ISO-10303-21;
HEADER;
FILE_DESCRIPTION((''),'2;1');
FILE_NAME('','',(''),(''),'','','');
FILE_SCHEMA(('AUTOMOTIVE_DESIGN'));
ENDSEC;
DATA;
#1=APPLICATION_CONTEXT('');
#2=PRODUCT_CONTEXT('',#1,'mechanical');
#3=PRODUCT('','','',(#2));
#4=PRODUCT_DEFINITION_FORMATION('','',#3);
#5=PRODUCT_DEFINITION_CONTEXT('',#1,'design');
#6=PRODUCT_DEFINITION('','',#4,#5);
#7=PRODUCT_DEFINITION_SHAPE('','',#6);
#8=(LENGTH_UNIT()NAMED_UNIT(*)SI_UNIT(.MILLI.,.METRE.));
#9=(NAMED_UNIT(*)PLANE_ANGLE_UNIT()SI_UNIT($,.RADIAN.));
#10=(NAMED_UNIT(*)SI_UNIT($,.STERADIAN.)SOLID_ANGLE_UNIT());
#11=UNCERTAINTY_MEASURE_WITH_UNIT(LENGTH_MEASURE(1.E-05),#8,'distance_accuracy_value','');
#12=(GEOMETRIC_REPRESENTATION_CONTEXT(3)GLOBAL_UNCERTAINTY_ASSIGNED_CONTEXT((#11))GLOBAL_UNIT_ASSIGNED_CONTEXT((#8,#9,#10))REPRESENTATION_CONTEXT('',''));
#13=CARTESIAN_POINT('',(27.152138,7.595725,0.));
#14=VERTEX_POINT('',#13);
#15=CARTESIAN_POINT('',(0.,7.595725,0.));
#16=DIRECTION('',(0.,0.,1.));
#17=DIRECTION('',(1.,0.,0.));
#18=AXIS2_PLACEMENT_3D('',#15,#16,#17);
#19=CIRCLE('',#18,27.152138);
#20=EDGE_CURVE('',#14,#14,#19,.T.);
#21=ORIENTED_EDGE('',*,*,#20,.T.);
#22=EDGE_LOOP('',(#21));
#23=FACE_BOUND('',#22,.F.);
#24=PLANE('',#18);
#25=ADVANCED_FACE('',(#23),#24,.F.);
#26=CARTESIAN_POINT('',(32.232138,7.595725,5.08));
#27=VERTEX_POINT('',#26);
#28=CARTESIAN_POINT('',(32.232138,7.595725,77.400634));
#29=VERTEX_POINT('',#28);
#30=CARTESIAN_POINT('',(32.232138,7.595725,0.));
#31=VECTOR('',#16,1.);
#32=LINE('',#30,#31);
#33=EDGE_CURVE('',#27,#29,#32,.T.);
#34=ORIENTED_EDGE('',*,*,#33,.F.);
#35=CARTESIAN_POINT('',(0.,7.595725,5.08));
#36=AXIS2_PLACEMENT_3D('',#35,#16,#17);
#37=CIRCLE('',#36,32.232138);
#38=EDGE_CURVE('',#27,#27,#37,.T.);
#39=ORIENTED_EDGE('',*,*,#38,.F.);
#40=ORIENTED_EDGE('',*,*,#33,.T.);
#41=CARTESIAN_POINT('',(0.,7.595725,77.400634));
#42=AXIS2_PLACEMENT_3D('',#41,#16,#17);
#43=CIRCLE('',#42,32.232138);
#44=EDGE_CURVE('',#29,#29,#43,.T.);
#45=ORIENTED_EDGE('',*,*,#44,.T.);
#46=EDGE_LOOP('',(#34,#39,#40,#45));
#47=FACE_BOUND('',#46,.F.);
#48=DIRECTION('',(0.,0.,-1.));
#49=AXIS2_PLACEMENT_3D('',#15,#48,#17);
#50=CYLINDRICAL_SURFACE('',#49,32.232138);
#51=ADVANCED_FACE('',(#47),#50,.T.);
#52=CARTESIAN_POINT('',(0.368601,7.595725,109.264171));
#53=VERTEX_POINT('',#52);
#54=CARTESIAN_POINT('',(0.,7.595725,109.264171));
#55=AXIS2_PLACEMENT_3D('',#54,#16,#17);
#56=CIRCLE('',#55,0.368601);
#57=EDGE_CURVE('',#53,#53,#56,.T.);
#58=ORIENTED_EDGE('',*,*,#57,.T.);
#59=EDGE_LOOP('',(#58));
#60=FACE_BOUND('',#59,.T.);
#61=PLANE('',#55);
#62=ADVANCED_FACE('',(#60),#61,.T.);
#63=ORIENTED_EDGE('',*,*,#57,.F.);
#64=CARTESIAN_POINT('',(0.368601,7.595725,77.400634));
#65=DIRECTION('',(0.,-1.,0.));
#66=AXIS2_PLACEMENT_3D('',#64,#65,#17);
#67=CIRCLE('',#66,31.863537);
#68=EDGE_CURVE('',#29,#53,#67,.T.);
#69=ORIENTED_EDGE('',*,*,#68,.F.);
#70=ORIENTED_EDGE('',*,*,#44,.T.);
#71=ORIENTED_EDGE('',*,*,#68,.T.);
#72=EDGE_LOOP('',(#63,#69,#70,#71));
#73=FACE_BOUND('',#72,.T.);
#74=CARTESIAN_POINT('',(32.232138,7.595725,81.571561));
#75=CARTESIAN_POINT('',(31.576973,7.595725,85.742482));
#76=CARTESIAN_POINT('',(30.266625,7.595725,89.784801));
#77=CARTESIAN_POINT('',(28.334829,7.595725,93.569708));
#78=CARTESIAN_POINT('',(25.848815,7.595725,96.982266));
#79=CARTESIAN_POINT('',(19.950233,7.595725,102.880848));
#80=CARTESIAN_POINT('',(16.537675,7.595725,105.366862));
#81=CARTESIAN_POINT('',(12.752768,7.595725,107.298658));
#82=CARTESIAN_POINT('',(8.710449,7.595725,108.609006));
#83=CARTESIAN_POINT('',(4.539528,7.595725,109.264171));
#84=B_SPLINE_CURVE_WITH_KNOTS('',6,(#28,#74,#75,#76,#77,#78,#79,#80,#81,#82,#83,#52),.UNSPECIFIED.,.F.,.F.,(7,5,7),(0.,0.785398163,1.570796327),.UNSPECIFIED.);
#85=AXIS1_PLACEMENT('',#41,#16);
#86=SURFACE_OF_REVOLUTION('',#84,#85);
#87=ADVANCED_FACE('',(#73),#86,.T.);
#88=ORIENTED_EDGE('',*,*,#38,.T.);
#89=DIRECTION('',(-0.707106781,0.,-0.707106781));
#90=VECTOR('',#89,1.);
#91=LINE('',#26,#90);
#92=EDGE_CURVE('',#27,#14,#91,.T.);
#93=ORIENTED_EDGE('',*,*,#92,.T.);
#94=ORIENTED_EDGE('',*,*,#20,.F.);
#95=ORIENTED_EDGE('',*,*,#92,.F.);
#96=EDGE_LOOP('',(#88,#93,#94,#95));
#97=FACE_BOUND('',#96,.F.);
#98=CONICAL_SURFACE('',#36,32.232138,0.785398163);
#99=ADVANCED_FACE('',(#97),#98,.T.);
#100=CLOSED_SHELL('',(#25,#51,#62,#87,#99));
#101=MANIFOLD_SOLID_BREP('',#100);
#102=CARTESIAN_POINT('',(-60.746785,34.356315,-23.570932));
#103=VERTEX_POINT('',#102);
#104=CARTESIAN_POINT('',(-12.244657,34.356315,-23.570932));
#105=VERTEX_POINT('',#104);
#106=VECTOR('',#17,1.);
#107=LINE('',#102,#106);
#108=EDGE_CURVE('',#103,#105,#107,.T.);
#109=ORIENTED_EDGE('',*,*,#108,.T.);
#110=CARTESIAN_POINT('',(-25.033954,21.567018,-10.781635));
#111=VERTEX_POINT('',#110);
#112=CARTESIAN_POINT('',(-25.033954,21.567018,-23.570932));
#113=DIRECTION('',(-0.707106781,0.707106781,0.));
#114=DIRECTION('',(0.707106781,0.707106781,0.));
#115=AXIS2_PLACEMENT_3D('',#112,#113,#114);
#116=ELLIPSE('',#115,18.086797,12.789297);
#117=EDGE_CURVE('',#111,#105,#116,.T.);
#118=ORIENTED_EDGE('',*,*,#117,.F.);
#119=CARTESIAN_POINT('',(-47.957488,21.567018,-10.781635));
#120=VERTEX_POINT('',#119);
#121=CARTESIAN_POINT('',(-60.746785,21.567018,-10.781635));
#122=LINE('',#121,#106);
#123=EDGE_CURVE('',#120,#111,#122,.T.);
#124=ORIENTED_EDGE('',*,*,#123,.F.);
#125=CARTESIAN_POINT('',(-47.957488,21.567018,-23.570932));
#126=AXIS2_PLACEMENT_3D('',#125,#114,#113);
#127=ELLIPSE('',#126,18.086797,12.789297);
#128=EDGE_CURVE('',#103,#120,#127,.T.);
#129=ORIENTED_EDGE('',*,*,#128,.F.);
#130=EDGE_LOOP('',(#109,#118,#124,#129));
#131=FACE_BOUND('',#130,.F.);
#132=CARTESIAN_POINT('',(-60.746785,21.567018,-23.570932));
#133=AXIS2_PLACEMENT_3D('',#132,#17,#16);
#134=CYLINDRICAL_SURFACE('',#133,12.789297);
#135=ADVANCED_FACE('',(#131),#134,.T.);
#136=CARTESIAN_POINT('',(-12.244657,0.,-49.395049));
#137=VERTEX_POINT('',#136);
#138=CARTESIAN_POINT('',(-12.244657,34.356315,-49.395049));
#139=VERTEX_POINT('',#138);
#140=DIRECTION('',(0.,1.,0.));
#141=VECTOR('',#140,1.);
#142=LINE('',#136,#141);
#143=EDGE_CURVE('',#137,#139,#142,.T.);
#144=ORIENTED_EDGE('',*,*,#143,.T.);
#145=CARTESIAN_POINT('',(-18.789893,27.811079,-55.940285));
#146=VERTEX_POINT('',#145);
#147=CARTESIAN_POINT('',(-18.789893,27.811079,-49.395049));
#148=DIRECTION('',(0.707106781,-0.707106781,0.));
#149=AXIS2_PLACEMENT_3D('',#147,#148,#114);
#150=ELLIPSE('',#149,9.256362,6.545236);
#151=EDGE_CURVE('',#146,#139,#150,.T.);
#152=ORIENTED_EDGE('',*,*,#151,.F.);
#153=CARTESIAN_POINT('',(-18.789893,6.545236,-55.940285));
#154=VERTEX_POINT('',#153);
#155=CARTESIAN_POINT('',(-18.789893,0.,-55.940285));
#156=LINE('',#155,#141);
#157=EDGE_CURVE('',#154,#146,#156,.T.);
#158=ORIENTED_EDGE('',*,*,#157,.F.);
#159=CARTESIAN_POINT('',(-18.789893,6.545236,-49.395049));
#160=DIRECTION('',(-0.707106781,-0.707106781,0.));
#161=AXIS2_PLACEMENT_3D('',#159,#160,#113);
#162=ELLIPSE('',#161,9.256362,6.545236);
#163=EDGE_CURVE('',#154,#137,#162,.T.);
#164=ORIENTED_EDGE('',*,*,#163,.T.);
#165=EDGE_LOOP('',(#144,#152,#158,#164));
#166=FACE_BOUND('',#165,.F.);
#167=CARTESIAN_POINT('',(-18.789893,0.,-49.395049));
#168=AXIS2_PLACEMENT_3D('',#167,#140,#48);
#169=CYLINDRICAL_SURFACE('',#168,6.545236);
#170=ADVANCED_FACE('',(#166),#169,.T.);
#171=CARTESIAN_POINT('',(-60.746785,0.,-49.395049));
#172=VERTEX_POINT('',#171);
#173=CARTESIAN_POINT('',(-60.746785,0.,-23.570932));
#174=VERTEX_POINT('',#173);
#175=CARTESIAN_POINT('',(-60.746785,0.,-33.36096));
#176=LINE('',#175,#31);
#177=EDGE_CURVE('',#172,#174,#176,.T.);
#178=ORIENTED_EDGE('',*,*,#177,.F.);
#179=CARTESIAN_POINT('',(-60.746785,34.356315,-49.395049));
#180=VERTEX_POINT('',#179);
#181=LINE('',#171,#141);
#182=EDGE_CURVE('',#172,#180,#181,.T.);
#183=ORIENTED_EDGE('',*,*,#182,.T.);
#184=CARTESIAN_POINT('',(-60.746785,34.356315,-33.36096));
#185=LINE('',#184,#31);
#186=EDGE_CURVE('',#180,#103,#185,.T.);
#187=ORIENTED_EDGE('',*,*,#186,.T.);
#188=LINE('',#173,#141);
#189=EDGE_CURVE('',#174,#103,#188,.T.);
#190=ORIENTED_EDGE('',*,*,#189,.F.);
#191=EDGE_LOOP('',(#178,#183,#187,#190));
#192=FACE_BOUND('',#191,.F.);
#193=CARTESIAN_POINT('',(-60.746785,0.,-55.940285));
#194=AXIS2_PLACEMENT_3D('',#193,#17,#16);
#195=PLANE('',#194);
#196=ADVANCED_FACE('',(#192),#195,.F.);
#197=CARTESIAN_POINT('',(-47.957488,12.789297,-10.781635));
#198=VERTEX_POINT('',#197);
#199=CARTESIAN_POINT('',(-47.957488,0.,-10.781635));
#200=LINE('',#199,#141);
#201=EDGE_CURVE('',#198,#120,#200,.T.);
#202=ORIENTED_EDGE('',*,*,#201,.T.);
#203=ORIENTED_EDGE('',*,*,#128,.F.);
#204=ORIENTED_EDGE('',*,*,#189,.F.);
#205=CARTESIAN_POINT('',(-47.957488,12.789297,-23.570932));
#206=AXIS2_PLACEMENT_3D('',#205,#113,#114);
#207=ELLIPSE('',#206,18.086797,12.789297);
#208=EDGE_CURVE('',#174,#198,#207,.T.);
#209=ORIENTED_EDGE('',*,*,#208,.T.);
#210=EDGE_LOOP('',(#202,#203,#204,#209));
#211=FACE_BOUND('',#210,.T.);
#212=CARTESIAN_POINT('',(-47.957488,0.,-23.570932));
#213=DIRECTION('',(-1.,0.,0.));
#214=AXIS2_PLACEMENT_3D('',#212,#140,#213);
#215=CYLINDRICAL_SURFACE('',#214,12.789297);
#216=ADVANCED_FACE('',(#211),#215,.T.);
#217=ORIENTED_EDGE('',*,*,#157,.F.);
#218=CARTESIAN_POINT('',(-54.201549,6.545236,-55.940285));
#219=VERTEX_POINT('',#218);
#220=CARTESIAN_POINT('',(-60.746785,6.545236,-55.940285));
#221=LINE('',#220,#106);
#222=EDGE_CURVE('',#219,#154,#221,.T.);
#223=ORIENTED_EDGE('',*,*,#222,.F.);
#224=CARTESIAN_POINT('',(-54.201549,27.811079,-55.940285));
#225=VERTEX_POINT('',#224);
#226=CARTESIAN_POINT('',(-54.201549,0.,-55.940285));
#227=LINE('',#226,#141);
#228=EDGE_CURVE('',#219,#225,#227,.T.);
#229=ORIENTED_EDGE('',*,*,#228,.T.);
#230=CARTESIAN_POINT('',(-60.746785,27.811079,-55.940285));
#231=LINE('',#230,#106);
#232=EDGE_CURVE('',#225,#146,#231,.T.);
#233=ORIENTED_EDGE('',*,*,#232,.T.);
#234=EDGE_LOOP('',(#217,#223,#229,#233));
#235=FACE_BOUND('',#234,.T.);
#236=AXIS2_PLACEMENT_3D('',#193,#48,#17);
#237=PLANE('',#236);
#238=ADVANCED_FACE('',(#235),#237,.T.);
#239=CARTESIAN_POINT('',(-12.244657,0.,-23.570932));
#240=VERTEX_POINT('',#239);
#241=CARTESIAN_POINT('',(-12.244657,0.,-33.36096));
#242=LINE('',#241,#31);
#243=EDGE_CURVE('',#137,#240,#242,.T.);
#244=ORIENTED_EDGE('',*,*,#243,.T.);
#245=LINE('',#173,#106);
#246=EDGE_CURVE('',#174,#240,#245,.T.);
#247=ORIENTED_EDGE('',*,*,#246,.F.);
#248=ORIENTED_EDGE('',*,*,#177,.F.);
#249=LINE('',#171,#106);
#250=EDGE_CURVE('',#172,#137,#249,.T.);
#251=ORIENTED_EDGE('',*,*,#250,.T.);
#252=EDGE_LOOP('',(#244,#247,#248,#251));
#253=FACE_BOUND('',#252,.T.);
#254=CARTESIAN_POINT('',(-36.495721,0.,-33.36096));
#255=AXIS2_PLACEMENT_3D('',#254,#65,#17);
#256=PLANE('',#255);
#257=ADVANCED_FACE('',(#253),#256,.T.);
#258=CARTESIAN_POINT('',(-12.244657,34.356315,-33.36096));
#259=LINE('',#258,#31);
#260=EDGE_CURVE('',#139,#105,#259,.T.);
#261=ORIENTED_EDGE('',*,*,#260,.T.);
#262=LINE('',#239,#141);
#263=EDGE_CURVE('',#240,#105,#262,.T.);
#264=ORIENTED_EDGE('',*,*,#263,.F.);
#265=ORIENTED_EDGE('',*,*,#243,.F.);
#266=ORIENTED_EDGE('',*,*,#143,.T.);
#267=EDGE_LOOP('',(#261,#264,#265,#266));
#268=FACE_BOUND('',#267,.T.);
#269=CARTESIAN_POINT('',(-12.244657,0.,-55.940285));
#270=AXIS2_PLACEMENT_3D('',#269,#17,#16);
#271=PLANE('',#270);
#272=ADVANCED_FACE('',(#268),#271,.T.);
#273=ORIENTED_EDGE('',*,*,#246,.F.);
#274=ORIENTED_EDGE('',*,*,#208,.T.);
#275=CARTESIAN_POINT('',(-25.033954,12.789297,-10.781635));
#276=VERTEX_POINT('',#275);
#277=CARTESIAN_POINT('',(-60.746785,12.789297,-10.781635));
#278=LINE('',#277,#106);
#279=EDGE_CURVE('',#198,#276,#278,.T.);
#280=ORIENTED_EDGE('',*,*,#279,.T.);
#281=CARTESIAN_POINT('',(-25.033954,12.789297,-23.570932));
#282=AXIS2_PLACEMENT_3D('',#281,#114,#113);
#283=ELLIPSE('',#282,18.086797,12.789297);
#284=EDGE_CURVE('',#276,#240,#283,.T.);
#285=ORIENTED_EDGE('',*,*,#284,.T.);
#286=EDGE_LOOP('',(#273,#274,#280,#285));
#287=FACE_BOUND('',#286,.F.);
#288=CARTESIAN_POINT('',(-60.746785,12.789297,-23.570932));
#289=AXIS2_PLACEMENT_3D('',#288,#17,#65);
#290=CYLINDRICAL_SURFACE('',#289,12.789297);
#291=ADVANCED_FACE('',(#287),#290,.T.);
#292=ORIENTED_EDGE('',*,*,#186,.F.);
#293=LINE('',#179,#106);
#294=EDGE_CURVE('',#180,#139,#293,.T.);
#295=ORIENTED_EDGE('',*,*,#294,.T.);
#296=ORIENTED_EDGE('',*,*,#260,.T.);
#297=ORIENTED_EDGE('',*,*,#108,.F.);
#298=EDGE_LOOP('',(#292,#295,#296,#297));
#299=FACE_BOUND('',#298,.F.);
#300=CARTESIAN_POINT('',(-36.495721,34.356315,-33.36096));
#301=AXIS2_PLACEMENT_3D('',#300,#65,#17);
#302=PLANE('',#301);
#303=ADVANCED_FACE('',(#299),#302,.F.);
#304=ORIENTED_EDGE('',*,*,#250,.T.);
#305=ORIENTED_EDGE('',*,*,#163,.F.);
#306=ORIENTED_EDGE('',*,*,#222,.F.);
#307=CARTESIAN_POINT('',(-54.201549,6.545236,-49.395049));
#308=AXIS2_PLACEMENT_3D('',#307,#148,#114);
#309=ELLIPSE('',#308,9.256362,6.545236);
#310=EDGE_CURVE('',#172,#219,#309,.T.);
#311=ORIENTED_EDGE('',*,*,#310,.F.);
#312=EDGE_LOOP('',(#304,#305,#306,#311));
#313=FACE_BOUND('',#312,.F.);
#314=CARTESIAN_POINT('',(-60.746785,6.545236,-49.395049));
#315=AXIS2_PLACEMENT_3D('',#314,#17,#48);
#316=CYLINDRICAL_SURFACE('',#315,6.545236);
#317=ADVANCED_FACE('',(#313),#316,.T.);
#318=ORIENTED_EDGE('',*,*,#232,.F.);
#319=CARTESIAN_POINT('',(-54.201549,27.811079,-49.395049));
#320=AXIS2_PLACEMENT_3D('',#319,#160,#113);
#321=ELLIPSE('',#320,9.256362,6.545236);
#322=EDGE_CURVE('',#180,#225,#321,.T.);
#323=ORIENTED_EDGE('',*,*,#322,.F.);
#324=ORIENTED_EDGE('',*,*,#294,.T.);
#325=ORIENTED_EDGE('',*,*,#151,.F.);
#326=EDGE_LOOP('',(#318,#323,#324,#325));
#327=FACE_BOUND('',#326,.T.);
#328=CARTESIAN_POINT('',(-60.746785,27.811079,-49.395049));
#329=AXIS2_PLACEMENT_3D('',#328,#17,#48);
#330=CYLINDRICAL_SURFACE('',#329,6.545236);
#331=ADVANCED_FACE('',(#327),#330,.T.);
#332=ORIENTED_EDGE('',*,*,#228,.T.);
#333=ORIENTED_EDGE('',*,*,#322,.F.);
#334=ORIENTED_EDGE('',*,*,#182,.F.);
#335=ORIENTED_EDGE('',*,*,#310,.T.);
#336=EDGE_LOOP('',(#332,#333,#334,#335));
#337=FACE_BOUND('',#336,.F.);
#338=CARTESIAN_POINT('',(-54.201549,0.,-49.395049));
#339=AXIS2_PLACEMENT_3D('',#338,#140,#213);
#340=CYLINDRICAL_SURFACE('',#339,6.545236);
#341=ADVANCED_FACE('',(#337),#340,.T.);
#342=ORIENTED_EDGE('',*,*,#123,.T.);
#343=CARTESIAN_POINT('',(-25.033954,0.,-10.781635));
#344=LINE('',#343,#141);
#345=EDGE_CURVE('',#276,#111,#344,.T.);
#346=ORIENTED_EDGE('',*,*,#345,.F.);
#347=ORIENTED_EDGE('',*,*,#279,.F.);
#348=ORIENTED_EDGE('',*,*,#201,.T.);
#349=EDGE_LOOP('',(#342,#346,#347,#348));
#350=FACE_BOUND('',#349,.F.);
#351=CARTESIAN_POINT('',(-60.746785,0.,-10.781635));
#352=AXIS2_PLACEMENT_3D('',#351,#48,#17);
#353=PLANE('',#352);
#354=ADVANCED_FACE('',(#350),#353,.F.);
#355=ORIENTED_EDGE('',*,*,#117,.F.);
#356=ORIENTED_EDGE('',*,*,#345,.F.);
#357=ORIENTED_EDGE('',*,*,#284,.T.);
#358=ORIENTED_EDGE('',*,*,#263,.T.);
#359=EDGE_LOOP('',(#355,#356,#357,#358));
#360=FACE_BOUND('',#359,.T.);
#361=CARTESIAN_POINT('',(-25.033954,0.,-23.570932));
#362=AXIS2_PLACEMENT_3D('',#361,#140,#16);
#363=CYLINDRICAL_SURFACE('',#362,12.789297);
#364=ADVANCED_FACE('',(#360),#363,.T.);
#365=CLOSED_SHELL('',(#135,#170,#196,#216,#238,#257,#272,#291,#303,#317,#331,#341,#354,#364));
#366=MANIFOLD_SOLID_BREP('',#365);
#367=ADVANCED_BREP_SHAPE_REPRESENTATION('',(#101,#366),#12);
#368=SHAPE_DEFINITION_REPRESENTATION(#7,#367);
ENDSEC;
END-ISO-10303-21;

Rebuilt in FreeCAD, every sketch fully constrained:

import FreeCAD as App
import Part
import Sketcher

V = App.Vector
Q = App.Units.Quantity


def edges_at(feature, points):
    """Names of the edges that pass closest to the given points."""
    edges = feature.Shape.Edges
    near = lambda p: min(range(len(edges)), key=lambda i: edges[i].distToShape(Part.Vertex(*p))[0])
    return sorted({f"Edge{near(p) + 1}" for p in points})


def add_polygon(sketch, points):
    """Adds a closed chain of lines whose ends are joined by coincident constraints."""
    first, n = sketch.GeometryCount, len(points)
    for a, b in zip(points, points[1:] + points[:1]):
        sketch.addGeometry(Part.LineSegment(App.Vector(*a, 0), App.Vector(*b, 0)), False)
    for i in range(n):
        sketch.addConstraint(Sketcher.Constraint("Coincident", first + i, 2, first + (i + 1) % n, 1))

doc = App.newDocument("Part")
params = doc.addObject("Spreadsheet::Sheet", "Params")
for row, (alias, value) in enumerate([
    ("pad1_length", "109.264171 mm"),
    ("fillet_radius", "31.863537 mm"),
    ("chamfer_size", "0.2 in"),
    ("pad2_length", "34.356315 mm"),
    ("fillet2_radius", "6.545236 mm"),
    ("fillet3_radius", "12.789297 mm"),
], start=1):
    params.set(f"A{row}", alias)
    params.set(f"B{row}", "=" + value)
    params.setAlias(f"B{row}", alias)

body = doc.addObject("PartDesign::Body", "Body")

sketch1 = body.newObject("Sketcher::SketchObject", "Sketch")
sketch1.AttachmentSupport = (doc.getObject("XY_Plane"), [""])
sketch1.MapMode = "FlatFace"
sketch1.addGeometry(Part.Circle(V(0, 8, 0), V(0, 0, 1), 32), False)
sketch1.addConstraint(Sketcher.Constraint("PointOnObject", 0, 3, -2))
sketch1.addConstraint(Sketcher.Constraint("Diameter", 0, Q("64.464276 mm")))
sketch1.addConstraint(Sketcher.Constraint("DistanceY", -1, 1, 0, 3, Q("7.595725 mm")))
pad1 = body.newObject("PartDesign::Pad", "Pad")
pad1.Profile = sketch1
pad1.setExpression("Length", "Params.pad1_length")
doc.recompute()

fillet = body.newObject("PartDesign::Fillet", "Fillet")
fillet.Base = (pad1, edges_at(pad1, [(-32.232, 7.596, 109.264)]))
fillet.setExpression("Radius", "Params.fillet_radius")
doc.recompute()

chamfer = body.newObject("PartDesign::Chamfer", "Chamfer")
chamfer.Base = (fillet, edges_at(fillet, [(-32.232, 7.596, 0)]))
chamfer.setExpression("Size", "Params.chamfer_size")
body2 = doc.addObject("PartDesign::Body", "Body001")

sketch2 = body2.newObject("Sketcher::SketchObject", "Sketch001")
sketch2.AttachmentSupport = (doc.getObject("XZ_Plane001"), [""])
sketch2.MapMode = "FlatFace"
add_polygon(sketch2, [(-61, -11), (-61, -56), (-12, -56), (-12, -11)])
sketch2.addConstraint(Sketcher.Constraint("Vertical", 0))
sketch2.addConstraint(Sketcher.Constraint("Horizontal", 1))
sketch2.addConstraint(Sketcher.Constraint("Vertical", 2))
sketch2.addConstraint(Sketcher.Constraint("Horizontal", 3))
sketch2.addConstraint(Sketcher.Constraint("DistanceY", 0, 2, 0, 1, Q("45.15865 mm")))
sketch2.addConstraint(Sketcher.Constraint("DistanceX", 1, 1, 1, 2, Q("48.502128 mm")))
sketch2.addConstraint(Sketcher.Constraint("DistanceX", 0, 2, -1, 1, Q("60.746785 mm")))
sketch2.addConstraint(Sketcher.Constraint("DistanceY", 0, 2, -1, 1, Q("55.940285 mm")))
pad2 = body2.newObject("PartDesign::Pad", "Pad001")
pad2.Profile = sketch2
pad2.setExpression("Length", "Params.pad2_length")
pad2.Reversed = True
doc.recompute()

fillet2 = body2.newObject("PartDesign::Fillet", "Fillet001")
fillet2.Base = (pad2, edges_at(pad2, [
    (-60.747, 17.178, -55.94),
    (-12.245, 17.178, -55.94),
    (-36.496, 0, -55.94),
    (-36.496, 34.356, -55.94),
]))
fillet2.setExpression("Radius", "Params.fillet2_radius")
doc.recompute()

fillet3 = body2.newObject("PartDesign::Fillet", "Fillet002")
fillet3.Base = (fillet2, edges_at(fillet2, [
    (-12.245, 17.178, -10.782),
    (-60.747, 17.178, -10.782),
    (-36.496, 0, -10.782),
    (-36.496, 34.356, -10.782),
]))
fillet3.setExpression("Radius", "Params.fillet3_radius")

doc.recompute()
